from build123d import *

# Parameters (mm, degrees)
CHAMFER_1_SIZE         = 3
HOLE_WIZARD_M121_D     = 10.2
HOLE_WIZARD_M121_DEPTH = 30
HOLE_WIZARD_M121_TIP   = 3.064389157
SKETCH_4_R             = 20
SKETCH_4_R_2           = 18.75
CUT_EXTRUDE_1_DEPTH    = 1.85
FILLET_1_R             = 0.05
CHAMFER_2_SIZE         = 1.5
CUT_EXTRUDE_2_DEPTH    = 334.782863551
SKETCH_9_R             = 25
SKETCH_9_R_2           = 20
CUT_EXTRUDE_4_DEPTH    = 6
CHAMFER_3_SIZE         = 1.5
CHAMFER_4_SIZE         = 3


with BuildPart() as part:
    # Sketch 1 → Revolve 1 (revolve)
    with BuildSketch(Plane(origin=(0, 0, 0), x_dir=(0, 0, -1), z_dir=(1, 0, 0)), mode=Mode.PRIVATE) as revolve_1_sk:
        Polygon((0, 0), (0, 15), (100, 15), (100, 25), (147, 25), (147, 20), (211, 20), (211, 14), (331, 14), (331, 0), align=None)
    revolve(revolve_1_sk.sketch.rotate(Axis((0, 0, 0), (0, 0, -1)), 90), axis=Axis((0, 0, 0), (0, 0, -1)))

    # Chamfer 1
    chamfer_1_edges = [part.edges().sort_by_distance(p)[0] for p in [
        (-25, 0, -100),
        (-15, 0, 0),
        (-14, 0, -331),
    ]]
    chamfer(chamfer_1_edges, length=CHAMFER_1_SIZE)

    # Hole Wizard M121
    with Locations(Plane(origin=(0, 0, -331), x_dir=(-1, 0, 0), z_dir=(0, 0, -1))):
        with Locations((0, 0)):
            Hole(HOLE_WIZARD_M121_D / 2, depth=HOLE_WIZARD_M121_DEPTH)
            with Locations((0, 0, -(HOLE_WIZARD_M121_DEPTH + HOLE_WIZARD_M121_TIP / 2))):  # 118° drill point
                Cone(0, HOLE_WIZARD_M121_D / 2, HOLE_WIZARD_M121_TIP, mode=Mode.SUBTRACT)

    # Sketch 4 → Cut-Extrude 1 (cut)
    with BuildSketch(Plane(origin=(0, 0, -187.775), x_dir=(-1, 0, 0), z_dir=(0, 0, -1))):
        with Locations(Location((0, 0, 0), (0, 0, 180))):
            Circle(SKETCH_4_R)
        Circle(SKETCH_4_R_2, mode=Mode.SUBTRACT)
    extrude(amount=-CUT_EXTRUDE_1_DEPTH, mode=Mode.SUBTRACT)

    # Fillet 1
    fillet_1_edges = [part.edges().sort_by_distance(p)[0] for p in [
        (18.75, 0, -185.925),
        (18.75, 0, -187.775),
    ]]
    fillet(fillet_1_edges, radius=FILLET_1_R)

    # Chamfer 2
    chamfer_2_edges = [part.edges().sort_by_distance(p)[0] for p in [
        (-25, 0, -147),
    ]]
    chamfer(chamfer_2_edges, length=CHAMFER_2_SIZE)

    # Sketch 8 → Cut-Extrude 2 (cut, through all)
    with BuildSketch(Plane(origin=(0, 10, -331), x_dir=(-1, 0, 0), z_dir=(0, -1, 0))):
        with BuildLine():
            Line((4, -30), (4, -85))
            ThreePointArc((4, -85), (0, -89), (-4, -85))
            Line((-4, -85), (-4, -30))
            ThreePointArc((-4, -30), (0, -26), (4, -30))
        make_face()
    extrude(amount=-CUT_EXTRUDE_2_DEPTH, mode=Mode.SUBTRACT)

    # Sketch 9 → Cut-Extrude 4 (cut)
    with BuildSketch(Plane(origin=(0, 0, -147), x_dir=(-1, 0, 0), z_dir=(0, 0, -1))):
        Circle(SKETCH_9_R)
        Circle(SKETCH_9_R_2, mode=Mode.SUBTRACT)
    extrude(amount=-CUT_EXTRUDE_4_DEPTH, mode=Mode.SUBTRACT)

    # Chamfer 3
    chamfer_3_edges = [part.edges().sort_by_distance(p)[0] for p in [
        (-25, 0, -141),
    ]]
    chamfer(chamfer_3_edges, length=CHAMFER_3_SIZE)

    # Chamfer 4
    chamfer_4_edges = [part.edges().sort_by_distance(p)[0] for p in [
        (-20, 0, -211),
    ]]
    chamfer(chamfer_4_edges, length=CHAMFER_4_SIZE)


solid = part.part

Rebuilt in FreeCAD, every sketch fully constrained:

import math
import FreeCAD as App
import Part
import Sketcher

V = App.Vector


def edges_at(feature, points):
    """Names of the edges that pass closest to the given points."""
    edges = feature.Shape.Edges
    near = lambda p: min(range(len(edges)), key=lambda i: edges[i].distToShape(Part.Vertex(*p))[0])
    return sorted({f"Edge{near(p) + 1}" for p in points})


def add_polygon(sketch, points):
    """Adds a closed chain of lines whose ends are joined by coincident constraints."""
    first, n = sketch.GeometryCount, len(points)
    for a, b in zip(points, points[1:] + points[:1]):
        sketch.addGeometry(Part.LineSegment(App.Vector(*a, 0), App.Vector(*b, 0)), False)
    for i in range(n):
        sketch.addConstraint(Sketcher.Constraint("Coincident", first + i, 2, first + (i + 1) % n, 1))

doc = App.newDocument("Part")
body = doc.addObject("PartDesign::Body", "Body")

# Sketch on YZ plane
sketch1 = doc.addObject("Sketcher::SketchObject", "Sketch")
body.addObject(sketch1)
sketch1.AttachmentSupport = (doc.YZ_Plane, [""])
sketch1.MapMode = "FlatFace"
add_polygon(sketch1, [(15, 0), (0, 0), (0, -331), (14, -331), (14, -211), (20, -211), (20, -147), (25, -147), (25, -100), (15, -100)])  # lines 0-9
sketch1.addConstraint(Sketcher.Constraint("Horizontal", 0))
sketch1.addConstraint(Sketcher.Constraint("Vertical", 1))
sketch1.addConstraint(Sketcher.Constraint("Horizontal", 2))
sketch1.addConstraint(Sketcher.Constraint("Vertical", 3))
sketch1.addConstraint(Sketcher.Constraint("Horizontal", 4))
sketch1.addConstraint(Sketcher.Constraint("Vertical", 5))
sketch1.addConstraint(Sketcher.Constraint("Horizontal", 6))
sketch1.addConstraint(Sketcher.Constraint("Vertical", 7))
sketch1.addConstraint(Sketcher.Constraint("Horizontal", 8))
sketch1.addConstraint(Sketcher.Constraint("Vertical", 9))
sketch1.addConstraint(Sketcher.Constraint("Coincident", 0, 2, -1, 1))
sketch1.addConstraint(Sketcher.Constraint("DistanceX", 0, 2, 0, 1, 15.0))
sketch1.addConstraint(Sketcher.Constraint("DistanceX", 2, 1, 2, 2, 14.0))
sketch1.addConstraint(Sketcher.Constraint("DistanceX", 4, 1, 4, 2, 6.0))
sketch1.addConstraint(Sketcher.Constraint("DistanceX", 6, 1, 6, 2, 5.0))
sketch1.addConstraint(Sketcher.Constraint("DistanceY", 1, 2, 1, 1, 331.0))
sketch1.addConstraint(Sketcher.Constraint("DistanceY", 3, 1, 3, 2, 120.0))
sketch1.addConstraint(Sketcher.Constraint("DistanceY", 5, 1, 5, 2, 64.0))
sketch1.addConstraint(Sketcher.Constraint("DistanceY", 7, 1, 7, 2, 47.0))
revolution = doc.addObject("PartDesign::Revolution", "Revolution")
body.addObject(revolution)
revolution.Profile = sketch1
revolution.ReferenceAxis = (sketch1, ["V_Axis"])
revolution.Angle = 360
doc.recompute()

chamfer = doc.addObject("PartDesign::Chamfer", "Chamfer")
body.addObject(chamfer)
chamfer.Base = (revolution, edges_at(revolution, [(-25, 0, -100), (-15, 0, 0), (-14, 0, -331)]))
chamfer.Size = 3

# Sketch on XY plane
sketch2 = doc.addObject("Sketcher::SketchObject", "Sketch001")
body.addObject(sketch2)
sketch2.AttachmentSupport = (doc.XY_Plane, [""])
sketch2.MapMode = "FlatFace"
sketch2.AttachmentOffset = App.Placement(V(0, 0, -331), App.Rotation())
sketch2.addGeometry(Part.Circle(V(0, 0, 0), V(0, 0, 1), 5), False)
sketch2.addConstraint(Sketcher.Constraint("Coincident", 0, 3, -1, 1))
sketch2.addConstraint(Sketcher.Constraint("Diameter", 0, 10.2))
doc.recompute()
hole = doc.addObject("PartDesign::Hole", "Hole")
body.addObject(hole)
hole.Profile = sketch2
hole.ThreadType = "None"
hole.Diameter = 10.2
hole.DepthType = "Dimension"
hole.Depth = 30
hole.DrillPoint = "Angled"
hole.DrillPointAngle = 118
hole.Reversed = True

# Sketch on XY plane
sketch3 = doc.addObject("Sketcher::SketchObject", "Sketch002")
body.addObject(sketch3)
sketch3.AttachmentSupport = (doc.XY_Plane, [""])
sketch3.MapMode = "FlatFace"
sketch3.AttachmentOffset = App.Placement(V(0, 0, -187.775), App.Rotation())
sketch3.addGeometry(Part.Circle(V(0, 0, 0), V(0, 0, 1), 20), False)
sketch3.addGeometry(Part.Circle(V(0, 0, 0), V(0, 0, 1), 19), False)
sketch3.addConstraint(Sketcher.Constraint("Coincident", 0, 3, -1, 1))
sketch3.addConstraint(Sketcher.Constraint("Coincident", 1, 3, -1, 1))
sketch3.addConstraint(Sketcher.Constraint("Diameter", 0, 40.0))
sketch3.addConstraint(Sketcher.Constraint("Diameter", 1, 37.5))
pocket1 = doc.addObject("PartDesign::Pocket", "Pocket")
body.addObject(pocket1)
pocket1.Profile = sketch3
pocket1.Length = 1.85
pocket1.Reversed = True
doc.recompute()

fillet = doc.addObject("PartDesign::Fillet", "Fillet")
body.addObject(fillet)
fillet.Base = (pocket1, edges_at(pocket1, [(18.75, 0, -185.925), (18.75, 0, -187.775)]))
fillet.Radius = 0.05
doc.recompute()

chamfer2 = doc.addObject("PartDesign::Chamfer", "Chamfer001")
body.addObject(chamfer2)
chamfer2.Base = (fillet, edges_at(fillet, [(-25, 0, -147)]))
chamfer2.Size = 1.5

# Sketch on XZ plane
sketch4 = doc.addObject("Sketcher::SketchObject", "Sketch003")
body.addObject(sketch4)
sketch4.AttachmentSupport = (doc.XZ_Plane, [""])
sketch4.MapMode = "FlatFace"
sketch4.AttachmentOffset = App.Placement(V(0, 0, -10), App.Rotation())
sketch4.addGeometry(Part.LineSegment(V(-4, -246, 0), V(-4, -301, 0)), False)
sketch4.addGeometry(Part.ArcOfCircle(Part.Circle(V(0, -301, 0), V(0, 0, 1), 4), math.radians(180), math.radians(360)), False)
sketch4.addGeometry(Part.LineSegment(V(4, -301, 0), V(4, -246, 0)), False)
sketch4.addGeometry(Part.ArcOfCircle(Part.Circle(V(0, -246, 0), V(0, 0, 1), 4), math.radians(0), math.radians(180)), False)
sketch4.addConstraint(Sketcher.Constraint("Tangent", 0, 2, 1, 1))
sketch4.addConstraint(Sketcher.Constraint("Tangent", 1, 2, 2, 1))
sketch4.addConstraint(Sketcher.Constraint("Tangent", 2, 2, 3, 1))
sketch4.addConstraint(Sketcher.Constraint("Tangent", 3, 2, 0, 1))
sketch4.addConstraint(Sketcher.Constraint("Vertical", 0))
sketch4.addConstraint(Sketcher.Constraint("Vertical", 2))
sketch4.addConstraint(Sketcher.Constraint("PointOnObject", 1, 3, -2))
sketch4.addConstraint(Sketcher.Constraint("Radius", 1, 4.0))
sketch4.addConstraint(Sketcher.Constraint("DistanceY", 0, 2, 0, 1, 55.0))
sketch4.addConstraint(Sketcher.Constraint("DistanceY", 1, 3, -1, 1, 301.0))
pocket2 = doc.addObject("PartDesign::Pocket", "Pocket001")
body.addObject(pocket2)
pocket2.Profile = sketch4
pocket2.Type = "ThroughAll"

# Sketch on XY plane
sketch5 = doc.addObject("Sketcher::SketchObject", "Sketch004")
body.addObject(sketch5)
sketch5.AttachmentSupport = (doc.XY_Plane, [""])
sketch5.MapMode = "FlatFace"
sketch5.AttachmentOffset = App.Placement(V(0, 0, -147), App.Rotation())
sketch5.addGeometry(Part.Circle(V(0, 0, 0), V(0, 0, 1), 25), False)
sketch5.addGeometry(Part.Circle(V(0, 0, 0), V(0, 0, 1), 20), False)
sketch5.addConstraint(Sketcher.Constraint("Coincident", 0, 3, -1, 1))
sketch5.addConstraint(Sketcher.Constraint("Coincident", 1, 3, -1, 1))
sketch5.addConstraint(Sketcher.Constraint("Diameter", 0, 50.0))
sketch5.addConstraint(Sketcher.Constraint("Diameter", 1, 40.0))
pocket3 = doc.addObject("PartDesign::Pocket", "Pocket002")
body.addObject(pocket3)
pocket3.Profile = sketch5
pocket3.Length = 6
pocket3.Reversed = True
doc.recompute()

chamfer3 = doc.addObject("PartDesign::Chamfer", "Chamfer002")
body.addObject(chamfer3)
chamfer3.Base = (pocket3, edges_at(pocket3, [(-25, 0, -141)]))
chamfer3.Size = 1.5
doc.recompute()

chamfer4 = doc.addObject("PartDesign::Chamfer", "Chamfer003")
body.addObject(chamfer4)
chamfer4.Base = (chamfer3, edges_at(chamfer3, [(-20, 0, -211)]))
chamfer4.Size = 3

doc.recompute()
